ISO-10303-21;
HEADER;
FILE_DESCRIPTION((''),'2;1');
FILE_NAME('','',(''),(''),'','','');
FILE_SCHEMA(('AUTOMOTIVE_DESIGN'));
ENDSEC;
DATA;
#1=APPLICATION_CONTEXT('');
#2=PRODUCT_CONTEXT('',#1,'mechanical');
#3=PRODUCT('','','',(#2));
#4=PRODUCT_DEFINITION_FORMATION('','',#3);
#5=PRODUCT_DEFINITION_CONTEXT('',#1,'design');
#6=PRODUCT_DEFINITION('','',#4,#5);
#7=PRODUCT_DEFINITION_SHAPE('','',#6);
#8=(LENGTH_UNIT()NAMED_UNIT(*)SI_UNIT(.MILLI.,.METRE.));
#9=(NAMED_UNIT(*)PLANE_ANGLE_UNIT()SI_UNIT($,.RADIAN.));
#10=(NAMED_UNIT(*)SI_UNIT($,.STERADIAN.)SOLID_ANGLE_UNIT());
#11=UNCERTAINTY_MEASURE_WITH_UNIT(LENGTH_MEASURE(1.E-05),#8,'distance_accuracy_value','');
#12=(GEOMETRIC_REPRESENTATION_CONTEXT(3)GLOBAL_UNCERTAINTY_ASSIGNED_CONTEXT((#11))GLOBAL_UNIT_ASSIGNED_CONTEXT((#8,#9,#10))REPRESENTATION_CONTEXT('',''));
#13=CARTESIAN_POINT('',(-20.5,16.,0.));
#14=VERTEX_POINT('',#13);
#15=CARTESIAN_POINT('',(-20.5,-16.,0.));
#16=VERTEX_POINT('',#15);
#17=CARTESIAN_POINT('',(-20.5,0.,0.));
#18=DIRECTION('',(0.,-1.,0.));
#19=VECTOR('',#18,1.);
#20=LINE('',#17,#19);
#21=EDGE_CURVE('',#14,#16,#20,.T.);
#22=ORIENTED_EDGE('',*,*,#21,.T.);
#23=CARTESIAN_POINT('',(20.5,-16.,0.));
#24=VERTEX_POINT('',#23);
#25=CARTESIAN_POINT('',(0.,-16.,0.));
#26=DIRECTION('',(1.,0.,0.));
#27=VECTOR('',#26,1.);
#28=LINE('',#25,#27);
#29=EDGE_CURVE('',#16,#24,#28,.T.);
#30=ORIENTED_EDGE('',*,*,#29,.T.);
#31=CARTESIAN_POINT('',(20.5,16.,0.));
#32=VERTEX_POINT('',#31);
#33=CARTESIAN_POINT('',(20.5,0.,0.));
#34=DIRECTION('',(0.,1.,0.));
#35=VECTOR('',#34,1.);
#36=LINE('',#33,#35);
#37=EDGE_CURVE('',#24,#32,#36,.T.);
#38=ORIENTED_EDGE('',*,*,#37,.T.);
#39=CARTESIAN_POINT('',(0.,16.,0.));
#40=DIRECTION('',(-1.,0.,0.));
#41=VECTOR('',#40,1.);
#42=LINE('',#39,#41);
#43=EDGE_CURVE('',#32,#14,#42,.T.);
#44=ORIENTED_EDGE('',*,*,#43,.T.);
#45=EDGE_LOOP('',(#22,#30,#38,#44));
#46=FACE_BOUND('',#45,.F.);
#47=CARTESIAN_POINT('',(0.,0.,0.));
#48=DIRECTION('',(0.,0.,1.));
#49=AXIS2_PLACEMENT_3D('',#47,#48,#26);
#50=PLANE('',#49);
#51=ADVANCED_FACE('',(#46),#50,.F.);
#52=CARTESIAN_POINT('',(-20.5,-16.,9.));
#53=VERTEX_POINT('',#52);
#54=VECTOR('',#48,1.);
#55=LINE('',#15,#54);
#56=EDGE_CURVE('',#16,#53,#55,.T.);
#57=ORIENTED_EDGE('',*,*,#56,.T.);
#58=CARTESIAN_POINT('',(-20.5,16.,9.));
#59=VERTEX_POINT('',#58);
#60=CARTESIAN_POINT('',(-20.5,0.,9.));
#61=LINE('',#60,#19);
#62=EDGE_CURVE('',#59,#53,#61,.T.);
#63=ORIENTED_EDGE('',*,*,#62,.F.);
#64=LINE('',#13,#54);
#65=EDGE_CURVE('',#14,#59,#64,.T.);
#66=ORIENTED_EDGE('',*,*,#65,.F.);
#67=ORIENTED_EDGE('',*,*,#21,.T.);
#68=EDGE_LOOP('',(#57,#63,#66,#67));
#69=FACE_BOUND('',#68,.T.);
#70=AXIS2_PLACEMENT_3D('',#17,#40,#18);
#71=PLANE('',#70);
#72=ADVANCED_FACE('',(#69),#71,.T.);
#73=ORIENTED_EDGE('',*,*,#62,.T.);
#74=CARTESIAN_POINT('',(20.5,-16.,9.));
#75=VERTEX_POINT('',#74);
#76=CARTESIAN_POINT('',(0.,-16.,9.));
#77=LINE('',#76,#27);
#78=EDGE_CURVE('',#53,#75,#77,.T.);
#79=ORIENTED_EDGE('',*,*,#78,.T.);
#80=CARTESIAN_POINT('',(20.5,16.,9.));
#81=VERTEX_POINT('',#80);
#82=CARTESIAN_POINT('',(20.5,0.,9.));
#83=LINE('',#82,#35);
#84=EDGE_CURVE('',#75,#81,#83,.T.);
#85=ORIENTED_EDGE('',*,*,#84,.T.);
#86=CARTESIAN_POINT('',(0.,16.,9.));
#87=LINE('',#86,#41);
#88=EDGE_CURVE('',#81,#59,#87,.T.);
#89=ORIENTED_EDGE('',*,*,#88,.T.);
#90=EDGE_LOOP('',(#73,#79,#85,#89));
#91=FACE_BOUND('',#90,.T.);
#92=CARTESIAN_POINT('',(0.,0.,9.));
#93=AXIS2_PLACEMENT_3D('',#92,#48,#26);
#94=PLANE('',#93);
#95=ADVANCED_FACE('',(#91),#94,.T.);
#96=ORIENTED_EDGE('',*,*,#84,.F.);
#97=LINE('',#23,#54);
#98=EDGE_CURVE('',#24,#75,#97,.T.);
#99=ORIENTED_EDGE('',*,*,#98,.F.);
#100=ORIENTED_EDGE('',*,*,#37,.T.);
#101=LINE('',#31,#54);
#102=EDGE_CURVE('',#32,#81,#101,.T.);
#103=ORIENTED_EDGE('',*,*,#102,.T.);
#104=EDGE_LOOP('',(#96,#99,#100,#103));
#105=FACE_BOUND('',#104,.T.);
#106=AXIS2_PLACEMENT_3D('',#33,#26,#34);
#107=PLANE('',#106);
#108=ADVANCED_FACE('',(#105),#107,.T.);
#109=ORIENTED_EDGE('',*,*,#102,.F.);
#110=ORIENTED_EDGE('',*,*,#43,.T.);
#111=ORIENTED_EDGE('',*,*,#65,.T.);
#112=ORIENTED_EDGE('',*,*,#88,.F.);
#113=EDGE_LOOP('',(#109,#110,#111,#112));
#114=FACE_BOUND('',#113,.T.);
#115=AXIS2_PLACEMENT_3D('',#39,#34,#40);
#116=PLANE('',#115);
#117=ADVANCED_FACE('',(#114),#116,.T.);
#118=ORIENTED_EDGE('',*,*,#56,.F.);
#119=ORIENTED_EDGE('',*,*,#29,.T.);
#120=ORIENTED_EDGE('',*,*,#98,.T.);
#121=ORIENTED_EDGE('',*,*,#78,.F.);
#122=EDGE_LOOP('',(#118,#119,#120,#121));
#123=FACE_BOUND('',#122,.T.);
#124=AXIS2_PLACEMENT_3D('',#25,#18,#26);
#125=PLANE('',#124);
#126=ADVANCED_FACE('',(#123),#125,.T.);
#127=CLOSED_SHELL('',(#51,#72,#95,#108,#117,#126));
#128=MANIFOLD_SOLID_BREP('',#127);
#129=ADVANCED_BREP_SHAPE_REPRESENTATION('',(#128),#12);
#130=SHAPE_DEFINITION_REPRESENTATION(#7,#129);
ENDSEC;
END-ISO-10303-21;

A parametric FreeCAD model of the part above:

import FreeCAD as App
import Part
import Sketcher


def add_polygon(sketch, points):
    """Adds a closed chain of lines whose ends are joined by coincident constraints."""
    first, n = sketch.GeometryCount, len(points)
    for a, b in zip(points, points[1:] + points[:1]):
        sketch.addGeometry(Part.LineSegment(App.Vector(*a, 0), App.Vector(*b, 0)), False)
    for i in range(n):
        sketch.addConstraint(Sketcher.Constraint("Coincident", first + i, 2, first + (i + 1) % n, 1))

doc = App.newDocument("Part")
body = doc.addObject("PartDesign::Body", "Body")

sketch1 = body.newObject("Sketcher::SketchObject", "Sketch")
sketch1.AttachmentSupport = (doc.getObject("XY_Plane"), [""])
sketch1.MapMode = "FlatFace"
add_polygon(sketch1, [(-20.5, 16), (-20.5, -16), (20.5, -16), (20.5, 16)])
sketch1.addConstraint(Sketcher.Constraint("Vertical", 0))
sketch1.addConstraint(Sketcher.Constraint("Horizontal", 1))
sketch1.addConstraint(Sketcher.Constraint("Vertical", 2))
sketch1.addConstraint(Sketcher.Constraint("Horizontal", 3))
sketch1.addConstraint(Sketcher.Constraint("Symmetric", 0, 2, 2, 2, -1, 1))
sketch1.addConstraint(Sketcher.Constraint("DistanceX", 1, 1, 1, 2, 41.0))
sketch1.addConstraint(Sketcher.Constraint("DistanceY", 0, 2, 0, 1, 32.0))

sketch2 = body.newObject("Sketcher::SketchObject", "Sketch001")
sketch2.AttachmentSupport = (doc.getObject("XZ_Plane"), [""])
sketch2.MapMode = "FlatFace"
sketch2.addGeometry(Part.LineSegment(App.Vector(0, 0, 0), App.Vector(0, 9, 0)), False)
sketch2.addConstraint(Sketcher.Constraint("Vertical", 0))
sketch2.addConstraint(Sketcher.Constraint("Coincident", 0, 1, -1, 1))
sketch2.addConstraint(Sketcher.Constraint("DistanceY", 0, 1, 0, 2, 9.0))
doc.recompute()

additivepipe = body.newObject("PartDesign::AdditivePipe", "AdditivePipe")
additivepipe.Profile = sketch1
additivepipe.Spine = (sketch2, ["Edge1"])

doc.recompute()
